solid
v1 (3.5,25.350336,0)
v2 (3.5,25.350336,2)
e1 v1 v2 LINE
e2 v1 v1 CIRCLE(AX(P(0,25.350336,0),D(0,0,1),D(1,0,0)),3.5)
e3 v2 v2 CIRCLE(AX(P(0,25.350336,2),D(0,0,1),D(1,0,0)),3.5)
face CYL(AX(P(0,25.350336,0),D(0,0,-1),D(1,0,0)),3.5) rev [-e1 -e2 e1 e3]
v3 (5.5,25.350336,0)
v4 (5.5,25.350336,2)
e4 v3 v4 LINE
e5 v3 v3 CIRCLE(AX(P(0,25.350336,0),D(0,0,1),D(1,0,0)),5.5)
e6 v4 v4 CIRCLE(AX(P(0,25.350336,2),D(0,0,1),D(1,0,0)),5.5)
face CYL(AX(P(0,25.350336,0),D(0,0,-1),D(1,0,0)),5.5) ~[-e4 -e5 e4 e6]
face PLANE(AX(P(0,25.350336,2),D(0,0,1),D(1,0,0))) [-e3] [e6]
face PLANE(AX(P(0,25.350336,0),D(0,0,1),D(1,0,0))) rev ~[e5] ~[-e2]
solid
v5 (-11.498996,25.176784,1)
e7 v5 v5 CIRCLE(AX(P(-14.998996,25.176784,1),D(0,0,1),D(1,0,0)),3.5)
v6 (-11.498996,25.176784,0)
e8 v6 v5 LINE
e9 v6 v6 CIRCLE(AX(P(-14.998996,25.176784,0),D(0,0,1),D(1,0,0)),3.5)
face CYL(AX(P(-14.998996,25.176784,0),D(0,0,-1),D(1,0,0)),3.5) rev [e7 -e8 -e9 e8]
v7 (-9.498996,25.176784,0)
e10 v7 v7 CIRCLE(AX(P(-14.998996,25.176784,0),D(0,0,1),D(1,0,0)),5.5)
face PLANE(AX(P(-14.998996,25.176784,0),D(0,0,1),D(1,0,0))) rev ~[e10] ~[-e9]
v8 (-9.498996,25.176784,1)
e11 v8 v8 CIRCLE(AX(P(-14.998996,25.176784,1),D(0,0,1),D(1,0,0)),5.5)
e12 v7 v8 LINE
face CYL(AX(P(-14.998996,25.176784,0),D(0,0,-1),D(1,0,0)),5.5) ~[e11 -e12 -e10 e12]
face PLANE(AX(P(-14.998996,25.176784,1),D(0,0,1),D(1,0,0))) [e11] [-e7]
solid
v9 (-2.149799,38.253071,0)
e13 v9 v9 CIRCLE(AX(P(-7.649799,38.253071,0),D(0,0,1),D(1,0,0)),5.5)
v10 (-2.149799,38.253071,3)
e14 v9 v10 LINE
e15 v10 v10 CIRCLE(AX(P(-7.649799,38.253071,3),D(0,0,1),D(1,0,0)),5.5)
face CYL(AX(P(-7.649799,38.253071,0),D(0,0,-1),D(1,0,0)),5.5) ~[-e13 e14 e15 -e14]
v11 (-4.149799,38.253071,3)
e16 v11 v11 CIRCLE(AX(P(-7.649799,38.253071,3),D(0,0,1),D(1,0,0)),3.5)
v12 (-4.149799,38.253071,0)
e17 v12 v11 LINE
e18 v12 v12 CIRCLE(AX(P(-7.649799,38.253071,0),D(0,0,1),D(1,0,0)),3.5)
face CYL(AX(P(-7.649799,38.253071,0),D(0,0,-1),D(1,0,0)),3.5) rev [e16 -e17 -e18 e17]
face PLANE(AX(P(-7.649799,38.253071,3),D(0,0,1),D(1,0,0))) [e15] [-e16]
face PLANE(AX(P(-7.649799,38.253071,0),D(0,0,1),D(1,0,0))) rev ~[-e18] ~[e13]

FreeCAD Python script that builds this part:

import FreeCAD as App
import Part
import Sketcher

V = App.Vector

doc = App.newDocument("Part")
body = doc.addObject("PartDesign::Body", "Body")

# Sketch on XY plane
sketch1 = doc.addObject("Sketcher::SketchObject", "Sketch")
body.addObject(sketch1)
sketch1.AttachmentSupport = (doc.XY_Plane, [""])
sketch1.MapMode = "FlatFace"
sketch1.addGeometry([
    Part.Circle(V(-15, 25.2, 0), V(0, 0, 1), 5.5),
    Part.Circle(V(-15, 25.2, 0), V(0, 0, 1), 3.5),
], False)
sketch1.addConstraint([
    Sketcher.Constraint("Coincident", 1, 3, 0, 3),
    Sketcher.Constraint("Diameter", 0, 11.0),
    Sketcher.Constraint("Diameter", 1, 7.0),
    Sketcher.Constraint("DistanceX", 0, 3, -1, 1, 14.998996),
    Sketcher.Constraint("DistanceY", -1, 1, 0, 3, 25.176784),
])
pad1 = doc.addObject("PartDesign::Pad", "Pad")
body.addObject(pad1)
pad1.Profile = sketch1
pad1.Length = 1
body2 = doc.addObject("PartDesign::Body", "Body001")

# Sketch on XY plane
sketch2 = doc.addObject("Sketcher::SketchObject", "Sketch001")
body2.addObject(sketch2)
sketch2.AttachmentSupport = (doc.getObject("XY_Plane001"), [""])
sketch2.MapMode = "FlatFace"
sketch2.addGeometry([
    Part.Circle(V(0, 25.4, 0), V(0, 0, 1), 5.5),
    Part.Circle(V(0, 25.4, 0), V(0, 0, 1), 3.5),
], False)
sketch2.addConstraint([
    Sketcher.Constraint("Coincident", 1, 3, 0, 3),
    Sketcher.Constraint("PointOnObject", 0, 3, -2),
    Sketcher.Constraint("Diameter", 0, 11.0),
    Sketcher.Constraint("Diameter", 1, 7.0),
    Sketcher.Constraint("DistanceY", -1, 1, 0, 3, 25.350336),
])
pad2 = doc.addObject("PartDesign::Pad", "Pad001")
body2.addObject(pad2)
pad2.Profile = sketch2
pad2.Length = 2
body3 = doc.addObject("PartDesign::Body", "Body002")

# Sketch on XY plane
sketch3 = doc.addObject("Sketcher::SketchObject", "Sketch002")
body3.addObject(sketch3)
sketch3.AttachmentSupport = (doc.getObject("XY_Plane002"), [""])
sketch3.MapMode = "FlatFace"
sketch3.addGeometry([
    Part.Circle(V(-7.6, 38.3, 0), V(0, 0, 1), 5.5),
    Part.Circle(V(-7.6, 38.3, 0), V(0, 0, 1), 3.5),
], False)
sketch3.addConstraint([
    Sketcher.Constraint("Coincident", 1, 3, 0, 3),
    Sketcher.Constraint("Diameter", 0, 11.0),
    Sketcher.Constraint("Diameter", 1, 7.0),
    Sketcher.Constraint("DistanceX", 0, 3, -1, 1, 7.649799),
    Sketcher.Constraint("DistanceY", -1, 1, 0, 3, 38.253071),
])
pad3 = doc.addObject("PartDesign::Pad", "Pad002")
body3.addObject(pad3)
pad3.Profile = sketch3
pad3.Length = 3

doc.recompute()
